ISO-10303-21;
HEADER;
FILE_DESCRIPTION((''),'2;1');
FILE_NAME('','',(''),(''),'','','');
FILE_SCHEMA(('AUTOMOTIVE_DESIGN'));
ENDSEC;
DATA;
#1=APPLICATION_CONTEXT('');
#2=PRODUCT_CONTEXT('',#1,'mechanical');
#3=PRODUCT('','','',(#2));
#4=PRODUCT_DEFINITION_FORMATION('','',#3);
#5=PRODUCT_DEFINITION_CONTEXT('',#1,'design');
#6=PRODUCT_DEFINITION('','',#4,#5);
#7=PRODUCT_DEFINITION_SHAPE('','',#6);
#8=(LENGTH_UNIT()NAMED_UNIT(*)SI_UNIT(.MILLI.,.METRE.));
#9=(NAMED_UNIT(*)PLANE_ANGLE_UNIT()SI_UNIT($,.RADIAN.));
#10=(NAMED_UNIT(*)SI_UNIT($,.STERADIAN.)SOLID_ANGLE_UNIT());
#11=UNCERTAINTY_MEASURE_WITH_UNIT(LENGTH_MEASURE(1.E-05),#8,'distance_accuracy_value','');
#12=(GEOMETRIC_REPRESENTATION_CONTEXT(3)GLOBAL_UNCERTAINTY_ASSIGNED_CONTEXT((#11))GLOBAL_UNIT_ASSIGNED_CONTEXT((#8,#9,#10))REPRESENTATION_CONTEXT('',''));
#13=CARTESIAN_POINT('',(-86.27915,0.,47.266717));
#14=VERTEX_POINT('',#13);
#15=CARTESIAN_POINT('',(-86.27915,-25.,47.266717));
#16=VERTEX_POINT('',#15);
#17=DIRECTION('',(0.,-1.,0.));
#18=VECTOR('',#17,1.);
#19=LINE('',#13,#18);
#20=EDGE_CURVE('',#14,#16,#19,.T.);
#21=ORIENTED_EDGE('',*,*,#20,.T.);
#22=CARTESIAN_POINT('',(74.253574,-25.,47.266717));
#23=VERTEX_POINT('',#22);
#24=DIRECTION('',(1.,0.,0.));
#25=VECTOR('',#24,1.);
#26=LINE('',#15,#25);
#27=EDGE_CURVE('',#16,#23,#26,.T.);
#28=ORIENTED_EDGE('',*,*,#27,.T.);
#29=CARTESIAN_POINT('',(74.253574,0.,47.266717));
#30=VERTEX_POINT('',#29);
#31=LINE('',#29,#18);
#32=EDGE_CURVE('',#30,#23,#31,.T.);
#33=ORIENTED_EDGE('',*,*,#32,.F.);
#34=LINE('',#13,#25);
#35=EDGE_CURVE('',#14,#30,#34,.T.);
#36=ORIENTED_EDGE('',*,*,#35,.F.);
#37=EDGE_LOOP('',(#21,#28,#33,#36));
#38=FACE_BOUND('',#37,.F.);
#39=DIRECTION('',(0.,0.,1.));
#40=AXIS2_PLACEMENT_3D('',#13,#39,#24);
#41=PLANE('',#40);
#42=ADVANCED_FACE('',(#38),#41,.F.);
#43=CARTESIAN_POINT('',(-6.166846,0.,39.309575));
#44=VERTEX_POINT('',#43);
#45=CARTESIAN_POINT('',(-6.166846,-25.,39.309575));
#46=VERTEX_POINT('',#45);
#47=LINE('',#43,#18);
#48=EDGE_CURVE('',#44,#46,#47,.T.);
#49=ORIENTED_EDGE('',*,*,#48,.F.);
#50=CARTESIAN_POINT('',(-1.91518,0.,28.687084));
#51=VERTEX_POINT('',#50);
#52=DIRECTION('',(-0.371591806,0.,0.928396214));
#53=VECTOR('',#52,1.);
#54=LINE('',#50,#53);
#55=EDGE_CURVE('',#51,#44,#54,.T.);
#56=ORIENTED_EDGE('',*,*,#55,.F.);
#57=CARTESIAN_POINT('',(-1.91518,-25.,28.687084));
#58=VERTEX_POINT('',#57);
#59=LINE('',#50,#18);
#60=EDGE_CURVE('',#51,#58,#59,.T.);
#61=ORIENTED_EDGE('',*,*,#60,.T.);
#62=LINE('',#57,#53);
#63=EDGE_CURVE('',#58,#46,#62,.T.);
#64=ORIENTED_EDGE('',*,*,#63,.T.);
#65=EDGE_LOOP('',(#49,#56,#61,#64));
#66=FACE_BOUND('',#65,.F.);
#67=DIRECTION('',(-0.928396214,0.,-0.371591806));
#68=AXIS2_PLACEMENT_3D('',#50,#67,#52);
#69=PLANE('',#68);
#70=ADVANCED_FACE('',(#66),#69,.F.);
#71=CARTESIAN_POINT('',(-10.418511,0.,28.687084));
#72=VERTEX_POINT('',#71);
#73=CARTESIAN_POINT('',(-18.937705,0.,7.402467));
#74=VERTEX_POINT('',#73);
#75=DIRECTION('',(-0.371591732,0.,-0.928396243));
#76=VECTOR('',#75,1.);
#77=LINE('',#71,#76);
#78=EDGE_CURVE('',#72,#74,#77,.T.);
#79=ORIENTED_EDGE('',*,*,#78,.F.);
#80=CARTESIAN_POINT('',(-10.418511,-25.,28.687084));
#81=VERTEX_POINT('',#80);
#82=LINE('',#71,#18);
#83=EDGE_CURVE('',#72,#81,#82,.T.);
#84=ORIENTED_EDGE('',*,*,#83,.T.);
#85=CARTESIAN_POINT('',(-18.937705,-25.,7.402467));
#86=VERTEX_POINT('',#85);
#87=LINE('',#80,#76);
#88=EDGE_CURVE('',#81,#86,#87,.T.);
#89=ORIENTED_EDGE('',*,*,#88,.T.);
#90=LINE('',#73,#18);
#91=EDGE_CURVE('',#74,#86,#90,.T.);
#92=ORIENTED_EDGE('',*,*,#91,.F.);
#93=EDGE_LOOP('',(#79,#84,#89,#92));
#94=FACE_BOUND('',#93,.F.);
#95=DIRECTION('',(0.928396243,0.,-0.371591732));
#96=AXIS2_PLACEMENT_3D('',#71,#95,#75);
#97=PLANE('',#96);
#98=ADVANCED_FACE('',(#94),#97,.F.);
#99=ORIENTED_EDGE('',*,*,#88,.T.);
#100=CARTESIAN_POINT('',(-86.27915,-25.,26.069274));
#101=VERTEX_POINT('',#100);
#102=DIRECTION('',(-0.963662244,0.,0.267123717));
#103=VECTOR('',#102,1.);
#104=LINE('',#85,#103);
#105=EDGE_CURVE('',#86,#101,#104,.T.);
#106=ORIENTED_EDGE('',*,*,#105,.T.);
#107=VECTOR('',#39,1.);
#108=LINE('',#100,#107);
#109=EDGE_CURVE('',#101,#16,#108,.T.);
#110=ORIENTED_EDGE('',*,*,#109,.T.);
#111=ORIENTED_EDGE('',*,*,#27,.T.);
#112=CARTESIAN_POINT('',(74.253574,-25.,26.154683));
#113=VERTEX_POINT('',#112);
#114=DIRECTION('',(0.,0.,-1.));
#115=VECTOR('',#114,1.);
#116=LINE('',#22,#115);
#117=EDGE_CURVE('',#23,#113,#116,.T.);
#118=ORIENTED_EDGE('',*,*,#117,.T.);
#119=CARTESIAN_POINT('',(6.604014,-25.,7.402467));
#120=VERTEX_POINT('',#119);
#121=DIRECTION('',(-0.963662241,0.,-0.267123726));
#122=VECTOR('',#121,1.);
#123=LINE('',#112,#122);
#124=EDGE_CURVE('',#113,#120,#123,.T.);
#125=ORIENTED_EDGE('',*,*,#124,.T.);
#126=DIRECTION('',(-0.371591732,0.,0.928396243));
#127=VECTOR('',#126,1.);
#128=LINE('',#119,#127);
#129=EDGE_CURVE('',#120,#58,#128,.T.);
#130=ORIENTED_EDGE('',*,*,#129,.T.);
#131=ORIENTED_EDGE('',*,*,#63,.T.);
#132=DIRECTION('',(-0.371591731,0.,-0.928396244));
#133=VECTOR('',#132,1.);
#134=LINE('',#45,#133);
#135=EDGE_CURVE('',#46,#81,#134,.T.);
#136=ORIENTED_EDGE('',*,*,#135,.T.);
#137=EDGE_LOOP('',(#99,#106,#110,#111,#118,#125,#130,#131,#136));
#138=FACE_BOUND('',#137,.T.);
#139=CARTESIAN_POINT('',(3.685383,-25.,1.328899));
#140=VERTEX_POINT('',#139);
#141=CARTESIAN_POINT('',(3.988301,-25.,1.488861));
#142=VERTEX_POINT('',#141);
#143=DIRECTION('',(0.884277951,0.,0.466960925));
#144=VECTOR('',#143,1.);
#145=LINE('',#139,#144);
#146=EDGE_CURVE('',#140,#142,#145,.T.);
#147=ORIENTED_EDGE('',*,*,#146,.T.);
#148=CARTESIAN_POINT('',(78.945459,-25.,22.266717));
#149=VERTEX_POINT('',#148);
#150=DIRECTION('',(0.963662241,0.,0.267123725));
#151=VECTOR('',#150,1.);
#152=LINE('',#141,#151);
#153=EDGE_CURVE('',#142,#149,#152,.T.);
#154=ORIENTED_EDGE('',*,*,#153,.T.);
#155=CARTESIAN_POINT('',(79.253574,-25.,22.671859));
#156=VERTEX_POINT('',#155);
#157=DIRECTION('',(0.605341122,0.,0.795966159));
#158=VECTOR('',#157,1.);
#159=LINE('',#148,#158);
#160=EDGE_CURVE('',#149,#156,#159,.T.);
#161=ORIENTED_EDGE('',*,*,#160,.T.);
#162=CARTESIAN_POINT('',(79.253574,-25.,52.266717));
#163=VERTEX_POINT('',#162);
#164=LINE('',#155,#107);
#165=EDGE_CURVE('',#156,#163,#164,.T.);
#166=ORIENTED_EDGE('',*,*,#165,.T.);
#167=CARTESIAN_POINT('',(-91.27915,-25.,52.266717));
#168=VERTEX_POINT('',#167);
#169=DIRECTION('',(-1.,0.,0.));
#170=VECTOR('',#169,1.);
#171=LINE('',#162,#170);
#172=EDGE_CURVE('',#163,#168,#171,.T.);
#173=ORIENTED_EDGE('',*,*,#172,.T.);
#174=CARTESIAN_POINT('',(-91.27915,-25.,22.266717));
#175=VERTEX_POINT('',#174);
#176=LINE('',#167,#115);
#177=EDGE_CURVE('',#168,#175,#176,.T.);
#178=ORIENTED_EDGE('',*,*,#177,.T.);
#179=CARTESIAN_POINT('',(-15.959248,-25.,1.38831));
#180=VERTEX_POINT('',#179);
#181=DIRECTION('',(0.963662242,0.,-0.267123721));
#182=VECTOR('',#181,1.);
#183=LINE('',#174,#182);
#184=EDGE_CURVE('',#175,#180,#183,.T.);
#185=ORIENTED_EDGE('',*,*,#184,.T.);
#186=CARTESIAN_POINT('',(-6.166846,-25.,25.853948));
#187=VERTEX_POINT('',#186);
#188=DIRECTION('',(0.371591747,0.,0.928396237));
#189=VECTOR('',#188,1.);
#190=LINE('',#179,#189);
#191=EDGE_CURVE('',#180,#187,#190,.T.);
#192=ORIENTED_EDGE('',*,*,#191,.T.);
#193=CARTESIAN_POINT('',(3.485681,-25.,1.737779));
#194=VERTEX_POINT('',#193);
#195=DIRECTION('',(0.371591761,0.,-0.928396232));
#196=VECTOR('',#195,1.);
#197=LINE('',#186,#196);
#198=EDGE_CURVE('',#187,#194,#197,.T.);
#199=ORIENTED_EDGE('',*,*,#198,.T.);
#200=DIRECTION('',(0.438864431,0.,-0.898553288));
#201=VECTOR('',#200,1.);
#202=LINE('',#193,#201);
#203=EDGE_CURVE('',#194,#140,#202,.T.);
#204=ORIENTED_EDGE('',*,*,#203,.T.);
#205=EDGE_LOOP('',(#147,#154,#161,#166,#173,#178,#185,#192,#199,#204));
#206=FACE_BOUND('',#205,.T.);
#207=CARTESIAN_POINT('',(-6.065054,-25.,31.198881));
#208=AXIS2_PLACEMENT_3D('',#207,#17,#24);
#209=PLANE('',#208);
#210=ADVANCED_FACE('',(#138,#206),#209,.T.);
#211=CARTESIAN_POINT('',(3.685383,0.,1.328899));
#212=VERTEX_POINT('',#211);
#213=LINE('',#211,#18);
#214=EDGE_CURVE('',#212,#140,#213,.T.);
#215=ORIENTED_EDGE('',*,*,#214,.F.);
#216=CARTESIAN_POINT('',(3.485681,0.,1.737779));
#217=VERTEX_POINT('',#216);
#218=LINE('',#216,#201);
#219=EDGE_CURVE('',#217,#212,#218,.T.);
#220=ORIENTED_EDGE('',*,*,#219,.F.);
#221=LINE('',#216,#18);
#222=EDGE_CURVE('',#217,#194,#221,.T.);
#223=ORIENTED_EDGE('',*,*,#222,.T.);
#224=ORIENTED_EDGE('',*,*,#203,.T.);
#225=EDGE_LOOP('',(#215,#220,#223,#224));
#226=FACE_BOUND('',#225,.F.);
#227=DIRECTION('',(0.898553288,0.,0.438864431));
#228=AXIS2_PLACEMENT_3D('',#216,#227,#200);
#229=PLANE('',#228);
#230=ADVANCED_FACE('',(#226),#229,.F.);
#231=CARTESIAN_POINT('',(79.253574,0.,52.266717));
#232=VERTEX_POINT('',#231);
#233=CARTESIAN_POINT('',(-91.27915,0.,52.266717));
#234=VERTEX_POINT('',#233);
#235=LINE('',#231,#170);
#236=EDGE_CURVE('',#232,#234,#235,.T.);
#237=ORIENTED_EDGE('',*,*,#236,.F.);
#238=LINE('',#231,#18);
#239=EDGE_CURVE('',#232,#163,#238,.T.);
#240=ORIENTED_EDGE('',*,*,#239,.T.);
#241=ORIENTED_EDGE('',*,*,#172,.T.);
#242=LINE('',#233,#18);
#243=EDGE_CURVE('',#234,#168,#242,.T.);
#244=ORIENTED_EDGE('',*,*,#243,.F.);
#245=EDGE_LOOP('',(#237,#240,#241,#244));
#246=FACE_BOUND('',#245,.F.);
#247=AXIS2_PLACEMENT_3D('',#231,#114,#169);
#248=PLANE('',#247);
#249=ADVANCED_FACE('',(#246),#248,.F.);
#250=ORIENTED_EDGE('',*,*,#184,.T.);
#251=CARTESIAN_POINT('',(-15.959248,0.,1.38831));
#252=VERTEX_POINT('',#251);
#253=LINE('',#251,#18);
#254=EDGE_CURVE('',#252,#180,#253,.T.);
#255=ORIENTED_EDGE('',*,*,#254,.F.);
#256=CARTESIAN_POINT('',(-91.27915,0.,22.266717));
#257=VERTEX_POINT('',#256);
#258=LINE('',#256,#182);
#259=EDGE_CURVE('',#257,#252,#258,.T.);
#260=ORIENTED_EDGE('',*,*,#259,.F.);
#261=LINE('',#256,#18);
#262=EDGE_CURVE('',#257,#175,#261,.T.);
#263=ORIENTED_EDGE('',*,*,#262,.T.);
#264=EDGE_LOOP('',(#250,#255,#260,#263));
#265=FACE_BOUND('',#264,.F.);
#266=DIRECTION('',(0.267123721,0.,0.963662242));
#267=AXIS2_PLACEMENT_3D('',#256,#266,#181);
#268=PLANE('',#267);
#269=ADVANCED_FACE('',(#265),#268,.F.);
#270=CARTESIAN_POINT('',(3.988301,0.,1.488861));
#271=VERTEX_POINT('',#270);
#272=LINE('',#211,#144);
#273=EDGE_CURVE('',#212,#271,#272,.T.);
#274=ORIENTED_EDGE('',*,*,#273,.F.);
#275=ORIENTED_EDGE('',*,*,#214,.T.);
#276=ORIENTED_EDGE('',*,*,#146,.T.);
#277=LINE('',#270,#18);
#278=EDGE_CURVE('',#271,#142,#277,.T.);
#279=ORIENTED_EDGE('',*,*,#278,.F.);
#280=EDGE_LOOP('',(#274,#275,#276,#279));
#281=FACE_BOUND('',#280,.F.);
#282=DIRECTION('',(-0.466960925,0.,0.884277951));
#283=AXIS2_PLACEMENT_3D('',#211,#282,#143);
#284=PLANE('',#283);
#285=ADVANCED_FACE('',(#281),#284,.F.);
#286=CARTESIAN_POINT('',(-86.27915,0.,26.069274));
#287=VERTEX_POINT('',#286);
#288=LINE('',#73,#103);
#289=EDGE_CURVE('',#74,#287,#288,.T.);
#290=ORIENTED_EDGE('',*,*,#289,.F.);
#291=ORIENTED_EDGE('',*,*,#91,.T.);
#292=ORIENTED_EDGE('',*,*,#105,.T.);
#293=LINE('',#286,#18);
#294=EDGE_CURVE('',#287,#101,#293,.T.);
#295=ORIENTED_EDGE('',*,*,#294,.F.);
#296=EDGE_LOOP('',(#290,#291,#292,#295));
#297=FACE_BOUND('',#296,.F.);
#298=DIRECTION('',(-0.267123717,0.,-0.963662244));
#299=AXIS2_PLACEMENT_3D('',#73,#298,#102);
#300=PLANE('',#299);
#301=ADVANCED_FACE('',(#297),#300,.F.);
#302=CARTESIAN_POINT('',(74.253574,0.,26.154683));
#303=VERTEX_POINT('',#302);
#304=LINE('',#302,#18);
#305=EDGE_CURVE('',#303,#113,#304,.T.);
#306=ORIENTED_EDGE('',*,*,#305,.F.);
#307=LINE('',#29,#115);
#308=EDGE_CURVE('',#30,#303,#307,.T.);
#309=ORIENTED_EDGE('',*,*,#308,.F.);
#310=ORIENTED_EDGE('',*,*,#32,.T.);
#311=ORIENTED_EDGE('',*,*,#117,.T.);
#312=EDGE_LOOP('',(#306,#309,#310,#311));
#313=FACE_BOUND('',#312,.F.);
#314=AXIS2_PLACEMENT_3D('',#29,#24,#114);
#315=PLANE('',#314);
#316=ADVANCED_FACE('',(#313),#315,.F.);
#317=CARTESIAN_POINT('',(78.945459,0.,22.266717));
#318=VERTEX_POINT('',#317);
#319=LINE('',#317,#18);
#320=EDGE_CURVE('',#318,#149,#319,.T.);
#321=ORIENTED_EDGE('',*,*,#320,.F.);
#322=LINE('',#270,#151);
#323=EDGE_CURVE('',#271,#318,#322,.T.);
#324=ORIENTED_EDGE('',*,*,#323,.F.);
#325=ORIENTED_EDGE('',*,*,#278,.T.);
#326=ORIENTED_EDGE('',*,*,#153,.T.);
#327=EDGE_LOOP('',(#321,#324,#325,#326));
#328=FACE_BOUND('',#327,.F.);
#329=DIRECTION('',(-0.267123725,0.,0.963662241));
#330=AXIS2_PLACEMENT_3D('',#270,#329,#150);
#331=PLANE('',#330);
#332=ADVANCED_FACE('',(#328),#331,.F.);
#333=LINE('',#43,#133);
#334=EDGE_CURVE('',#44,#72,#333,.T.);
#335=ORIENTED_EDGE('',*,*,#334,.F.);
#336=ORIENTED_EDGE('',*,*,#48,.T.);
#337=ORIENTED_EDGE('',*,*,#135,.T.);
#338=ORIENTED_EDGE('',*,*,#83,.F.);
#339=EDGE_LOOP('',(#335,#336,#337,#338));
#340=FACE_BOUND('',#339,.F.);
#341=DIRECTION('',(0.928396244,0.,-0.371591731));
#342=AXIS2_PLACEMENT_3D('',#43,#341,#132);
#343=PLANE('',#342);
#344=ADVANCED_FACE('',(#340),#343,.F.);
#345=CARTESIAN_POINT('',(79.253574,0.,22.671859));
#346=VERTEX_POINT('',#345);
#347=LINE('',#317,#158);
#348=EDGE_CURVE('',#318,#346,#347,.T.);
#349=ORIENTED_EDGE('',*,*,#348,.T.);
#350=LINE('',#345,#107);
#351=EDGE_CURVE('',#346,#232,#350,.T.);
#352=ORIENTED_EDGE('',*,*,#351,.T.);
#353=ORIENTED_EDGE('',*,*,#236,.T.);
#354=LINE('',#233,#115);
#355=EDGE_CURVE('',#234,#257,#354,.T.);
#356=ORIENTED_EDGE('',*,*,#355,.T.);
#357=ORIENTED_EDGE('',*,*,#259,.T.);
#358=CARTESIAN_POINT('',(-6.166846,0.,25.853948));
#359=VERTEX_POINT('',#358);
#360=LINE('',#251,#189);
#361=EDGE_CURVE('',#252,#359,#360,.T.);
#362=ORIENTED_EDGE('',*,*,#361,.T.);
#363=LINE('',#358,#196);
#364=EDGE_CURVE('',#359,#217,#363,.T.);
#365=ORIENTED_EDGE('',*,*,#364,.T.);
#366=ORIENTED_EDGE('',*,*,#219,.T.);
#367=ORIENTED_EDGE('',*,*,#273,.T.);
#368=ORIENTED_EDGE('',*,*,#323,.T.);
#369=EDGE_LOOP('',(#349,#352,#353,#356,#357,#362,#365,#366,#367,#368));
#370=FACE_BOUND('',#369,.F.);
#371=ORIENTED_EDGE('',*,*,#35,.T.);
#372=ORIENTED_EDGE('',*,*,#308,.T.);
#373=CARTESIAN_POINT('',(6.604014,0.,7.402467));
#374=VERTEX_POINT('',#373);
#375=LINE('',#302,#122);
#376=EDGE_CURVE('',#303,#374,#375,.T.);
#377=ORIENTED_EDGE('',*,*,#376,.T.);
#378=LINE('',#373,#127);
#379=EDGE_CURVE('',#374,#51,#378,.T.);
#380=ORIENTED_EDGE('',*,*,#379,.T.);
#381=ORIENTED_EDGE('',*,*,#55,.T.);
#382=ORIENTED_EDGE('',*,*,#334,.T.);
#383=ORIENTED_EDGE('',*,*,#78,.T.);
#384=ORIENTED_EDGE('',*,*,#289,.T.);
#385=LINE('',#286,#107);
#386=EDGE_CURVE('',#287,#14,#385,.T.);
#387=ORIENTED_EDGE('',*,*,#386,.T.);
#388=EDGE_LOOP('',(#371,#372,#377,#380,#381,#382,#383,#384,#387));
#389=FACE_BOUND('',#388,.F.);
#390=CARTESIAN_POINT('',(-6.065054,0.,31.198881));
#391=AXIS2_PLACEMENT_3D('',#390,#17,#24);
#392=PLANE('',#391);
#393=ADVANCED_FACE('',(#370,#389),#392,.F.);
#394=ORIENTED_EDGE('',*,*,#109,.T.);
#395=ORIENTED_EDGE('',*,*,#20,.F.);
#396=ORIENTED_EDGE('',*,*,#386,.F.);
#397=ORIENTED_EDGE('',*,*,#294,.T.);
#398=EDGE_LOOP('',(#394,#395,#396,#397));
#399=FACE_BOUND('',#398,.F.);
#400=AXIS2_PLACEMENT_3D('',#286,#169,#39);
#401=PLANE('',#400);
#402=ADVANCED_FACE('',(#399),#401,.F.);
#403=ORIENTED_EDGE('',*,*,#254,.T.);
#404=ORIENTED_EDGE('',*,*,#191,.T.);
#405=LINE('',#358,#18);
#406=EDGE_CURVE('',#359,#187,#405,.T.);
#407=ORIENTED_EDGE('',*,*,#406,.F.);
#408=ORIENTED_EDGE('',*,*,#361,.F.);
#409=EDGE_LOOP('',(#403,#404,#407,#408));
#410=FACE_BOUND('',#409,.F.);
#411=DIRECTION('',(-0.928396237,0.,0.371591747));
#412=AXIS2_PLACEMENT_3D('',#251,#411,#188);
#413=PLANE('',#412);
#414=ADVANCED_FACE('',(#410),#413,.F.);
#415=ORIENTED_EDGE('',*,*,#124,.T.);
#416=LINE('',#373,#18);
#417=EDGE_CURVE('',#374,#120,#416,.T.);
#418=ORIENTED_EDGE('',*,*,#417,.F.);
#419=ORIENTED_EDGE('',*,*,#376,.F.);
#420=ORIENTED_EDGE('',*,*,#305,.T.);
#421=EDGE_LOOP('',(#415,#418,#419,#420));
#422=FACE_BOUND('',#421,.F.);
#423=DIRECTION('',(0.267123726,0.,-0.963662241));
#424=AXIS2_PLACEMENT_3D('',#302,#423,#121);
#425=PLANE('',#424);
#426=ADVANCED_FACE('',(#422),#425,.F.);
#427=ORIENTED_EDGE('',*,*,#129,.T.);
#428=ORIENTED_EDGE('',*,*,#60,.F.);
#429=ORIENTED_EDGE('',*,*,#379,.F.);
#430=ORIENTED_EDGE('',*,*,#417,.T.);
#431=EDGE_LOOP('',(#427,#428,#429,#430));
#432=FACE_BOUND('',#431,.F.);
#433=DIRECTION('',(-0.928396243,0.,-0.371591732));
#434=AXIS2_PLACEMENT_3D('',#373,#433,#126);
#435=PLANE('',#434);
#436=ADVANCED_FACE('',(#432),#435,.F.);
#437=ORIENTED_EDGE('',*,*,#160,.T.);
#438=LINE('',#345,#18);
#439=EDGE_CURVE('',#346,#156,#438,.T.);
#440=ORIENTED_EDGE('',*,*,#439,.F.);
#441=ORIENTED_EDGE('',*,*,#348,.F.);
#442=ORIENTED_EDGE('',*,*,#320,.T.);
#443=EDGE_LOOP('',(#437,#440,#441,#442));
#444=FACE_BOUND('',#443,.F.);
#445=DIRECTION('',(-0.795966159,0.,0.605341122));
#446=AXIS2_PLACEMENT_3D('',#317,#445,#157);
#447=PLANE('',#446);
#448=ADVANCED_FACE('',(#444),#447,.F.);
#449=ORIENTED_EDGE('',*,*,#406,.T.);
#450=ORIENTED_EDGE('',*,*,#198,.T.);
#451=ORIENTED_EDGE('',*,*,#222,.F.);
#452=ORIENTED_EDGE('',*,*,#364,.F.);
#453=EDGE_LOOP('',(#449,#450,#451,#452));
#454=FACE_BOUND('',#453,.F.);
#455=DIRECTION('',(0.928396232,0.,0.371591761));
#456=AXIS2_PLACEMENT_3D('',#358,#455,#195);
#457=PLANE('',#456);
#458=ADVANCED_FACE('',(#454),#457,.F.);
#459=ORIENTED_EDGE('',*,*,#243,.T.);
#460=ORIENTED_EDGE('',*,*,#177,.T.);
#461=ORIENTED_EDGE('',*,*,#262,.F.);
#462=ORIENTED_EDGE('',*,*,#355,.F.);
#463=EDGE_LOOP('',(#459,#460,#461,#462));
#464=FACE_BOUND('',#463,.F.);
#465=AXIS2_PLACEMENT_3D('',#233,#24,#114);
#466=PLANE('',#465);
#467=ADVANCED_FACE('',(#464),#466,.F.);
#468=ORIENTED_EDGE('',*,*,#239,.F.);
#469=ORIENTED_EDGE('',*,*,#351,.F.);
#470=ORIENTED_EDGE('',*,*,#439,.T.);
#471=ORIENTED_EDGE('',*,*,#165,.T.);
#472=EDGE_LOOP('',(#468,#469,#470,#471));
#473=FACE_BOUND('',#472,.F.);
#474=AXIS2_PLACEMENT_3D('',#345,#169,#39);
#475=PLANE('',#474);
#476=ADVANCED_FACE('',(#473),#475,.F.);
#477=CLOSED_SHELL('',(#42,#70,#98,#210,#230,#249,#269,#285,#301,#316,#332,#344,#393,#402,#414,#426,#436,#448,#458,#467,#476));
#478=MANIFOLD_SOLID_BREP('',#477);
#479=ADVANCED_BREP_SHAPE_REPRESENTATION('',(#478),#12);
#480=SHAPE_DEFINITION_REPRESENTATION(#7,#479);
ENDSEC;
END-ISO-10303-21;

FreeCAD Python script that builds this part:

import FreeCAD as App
import Part
import Sketcher
from FreeCAD import Vector
Q = App.Units.Quantity


def add_polygon(sketch, points):
    """Adds a closed chain of lines whose ends are joined by coincident constraints."""
    first, n = sketch.GeometryCount, len(points)
    for a, b in zip(points, points[1:] + points[:1]):
        sketch.addGeometry(Part.LineSegment(App.Vector(*a, 0), App.Vector(*b, 0)), False)
    for i in range(n):
        sketch.addConstraint(Sketcher.Constraint("Coincident", first + i, 2, first + (i + 1) % n, 1))

doc = App.newDocument("Part")
body = doc.addObject("PartDesign::Body", "Body")

# Sketch on XZ plane
sketch1 = body.newObject("Sketcher::SketchObject", "Sketch")
sketch1.AttachmentSupport = (doc.getObject("XZ_Plane"), [""])
sketch1.MapMode = "FlatFace"
add_polygon(sketch1, [(-91.27915, 52.266717), (-91.27915, 22.266717), (-15.959248, 1.38831), (-6.166846, 25.853948), (3.485681, 1.737779), (3.685383, 1.328899), (3.988301, 1.488861), (78.945459, 22.266717), (79.253574, 22.671859), (79.253574, 52.266717)])  # lines 0-9
add_polygon(sketch1, [(74.253574, 47.266717), (74.253574, 26.154683), (6.604014, 7.402467), (-1.91518, 28.687084), (-6.166846, 39.309575), (-10.418511, 28.687084), (-18.937705, 7.402467), (-86.27915, 26.069274), (-86.27915, 47.266717)])  # lines 10-18
sketch1.addConstraint([
    Sketcher.Constraint("Vertical", 0),
    Sketcher.Constraint("Vertical", 8),
    Sketcher.Constraint("Horizontal", 9),
    Sketcher.Constraint("Vertical", 10),
    Sketcher.Constraint("Vertical", 17),
    Sketcher.Constraint("Horizontal", 18),
    Sketcher.Constraint("Parallel", 6, 11),
    Sketcher.Constraint("Parallel", 3, 12),
    Sketcher.Constraint("Parallel", 12, 13),
    Sketcher.Constraint("Parallel", 2, 14),
    Sketcher.Constraint("Parallel", 14, 15),
    Sketcher.Constraint("Parallel", 1, 16),
    Sketcher.Constraint("Horizontal", 0, 2, 6, 2),
    Sketcher.Constraint("Horizontal", 12, 2, 14, 2),
    Sketcher.Constraint("Horizontal", 11, 2, 15, 2),
    Sketcher.Constraint("Vertical", 2, 2, 13, 2),
    Sketcher.Constraint("Equal", 13, 14),
    Sketcher.Constraint("DistanceY", 0, 2, 0, 1, Q("30 mm")),
    Sketcher.Constraint("DistanceX", 10, 2, 7, 2, Q("5 mm")),
    Sketcher.Constraint("DistanceX", 0, 2, 16, 2, Q("5 mm")),
    Sketcher.Constraint("DistanceY", 17, 2, 9, 2, Q("5 mm")),
    Sketcher.Constraint("DistanceY", 5, 2, 7, 2, Q("21.182998 mm")),
    Sketcher.Constraint("DistanceY", -1, 1, 4, 2, Q("1.328899 mm")),
    Sketcher.Constraint("DistanceX", -1, 1, 5, 2, Q("3.988301 mm")),
    Sketcher.Constraint("DistanceX", 0, 2, 1, 2, Q("75.319902 mm")),
    Sketcher.Constraint("DistanceX", 3, 2, 4, 2, Q("0.199702 mm")),
    Sketcher.Constraint("Distance", 3, Q("25.97616 mm")),
    Sketcher.Constraint("Distance", 5, Q("0.34256 mm")),
    Sketcher.Constraint("Distance", 6, Q("77.783641 mm")),
    Sketcher.Constraint("Distance", 11, Q("70.200488 mm")),
    Sketcher.Constraint("Distance", 12, Q("22.926221 mm")),
    Sketcher.Constraint("DistanceX", 9, 2, 9, 1, Q("170.532724 mm")),
    Sketcher.Constraint("DistanceY", 8, 1, 8, 2, Q("29.594858 mm")),
    Sketcher.Constraint("DistanceY", 10, 2, 10, 1, Q("21.112034 mm")),
    Sketcher.Constraint("DistanceY", 17, 1, 17, 2, Q("21.197443 mm")),
    Sketcher.Constraint("DistanceX", 0, 2, -1, 1, Q("91.27915 mm")),
    Sketcher.Constraint("DistanceY", -1, 1, 1, 2, Q("1.38831 mm")),
    Sketcher.Constraint("DistanceX", -1, 1, 3, 2, Q("3.485681 mm")),
])
pad1 = body.newObject("PartDesign::Pad", "Pad")
pad1.Profile = sketch1
pad1.Length = 25

doc.recompute()
